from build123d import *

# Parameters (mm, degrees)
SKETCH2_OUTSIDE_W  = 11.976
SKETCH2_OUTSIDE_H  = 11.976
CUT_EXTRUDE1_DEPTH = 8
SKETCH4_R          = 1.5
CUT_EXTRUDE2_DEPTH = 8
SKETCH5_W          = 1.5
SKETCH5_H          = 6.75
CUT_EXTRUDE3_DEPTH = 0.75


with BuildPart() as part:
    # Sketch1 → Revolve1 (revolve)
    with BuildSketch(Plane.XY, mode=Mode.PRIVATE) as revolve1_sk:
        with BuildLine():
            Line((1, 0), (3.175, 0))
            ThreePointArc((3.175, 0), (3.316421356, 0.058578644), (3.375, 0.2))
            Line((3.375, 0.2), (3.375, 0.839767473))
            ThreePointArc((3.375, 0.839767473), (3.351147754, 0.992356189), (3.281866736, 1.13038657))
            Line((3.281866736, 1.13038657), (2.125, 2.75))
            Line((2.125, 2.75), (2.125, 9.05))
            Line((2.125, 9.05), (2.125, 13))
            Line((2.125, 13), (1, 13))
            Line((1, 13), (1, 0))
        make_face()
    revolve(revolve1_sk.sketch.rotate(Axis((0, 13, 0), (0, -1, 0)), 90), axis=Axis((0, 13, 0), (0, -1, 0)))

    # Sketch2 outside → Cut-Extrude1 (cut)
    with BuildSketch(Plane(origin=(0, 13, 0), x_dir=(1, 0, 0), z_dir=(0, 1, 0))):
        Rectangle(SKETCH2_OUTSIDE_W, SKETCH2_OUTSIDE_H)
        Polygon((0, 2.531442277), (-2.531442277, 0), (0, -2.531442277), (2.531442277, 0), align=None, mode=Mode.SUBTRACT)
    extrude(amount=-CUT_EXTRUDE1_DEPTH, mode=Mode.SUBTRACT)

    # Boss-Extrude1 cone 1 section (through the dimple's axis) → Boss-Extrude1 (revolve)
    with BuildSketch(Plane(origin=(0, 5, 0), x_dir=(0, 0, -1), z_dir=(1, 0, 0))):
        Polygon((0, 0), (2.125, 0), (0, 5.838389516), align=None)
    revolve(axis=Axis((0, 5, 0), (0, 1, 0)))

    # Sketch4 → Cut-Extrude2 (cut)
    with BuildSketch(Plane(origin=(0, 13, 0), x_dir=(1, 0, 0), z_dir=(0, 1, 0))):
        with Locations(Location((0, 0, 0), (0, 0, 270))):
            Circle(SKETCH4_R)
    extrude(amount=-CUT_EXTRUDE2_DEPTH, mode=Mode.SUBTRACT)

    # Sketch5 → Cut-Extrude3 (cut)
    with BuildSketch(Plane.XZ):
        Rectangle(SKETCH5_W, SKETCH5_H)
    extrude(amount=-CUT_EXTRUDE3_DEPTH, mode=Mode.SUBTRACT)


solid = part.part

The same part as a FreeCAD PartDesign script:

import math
import FreeCAD as App
import Part
import Sketcher
Q = App.Units.Quantity


def add_polygon(sketch, points):
    """Adds a closed chain of lines whose ends are joined by coincident constraints."""
    first, n = sketch.GeometryCount, len(points)
    for a, b in zip(points, points[1:] + points[:1]):
        sketch.addGeometry(Part.LineSegment(App.Vector(*a, 0), App.Vector(*b, 0)), False)
    for i in range(n):
        sketch.addConstraint(Sketcher.Constraint("Coincident", first + i, 2, first + (i + 1) % n, 1))

doc = App.newDocument("Part")
body = doc.addObject("PartDesign::Body", "Body")

# Sketch on XY plane
sketch1 = body.newObject("Sketcher::SketchObject", "Sketch")
sketch1.AttachmentSupport = (doc.getObject("XY_Plane"), [""])
sketch1.MapMode = "FlatFace"
sketch1.addGeometry([
    Part.LineSegment(App.Vector(1, 0, 0), App.Vector(3.17, 0, 0)),  # 0
    Part.ArcOfCircle(Part.Circle(App.Vector(3.17, 0.2, 0), App.Vector(0, 0, 1), 0.2), math.radians(-90), math.radians(0)),  # 1
    Part.LineSegment(App.Vector(3.38, 0.2, 0), App.Vector(3.38, 0.84, 0)),  # 2
    Part.ArcOfCircle(Part.Circle(App.Vector(2.87, 0.84, 0), App.Vector(0, 0, 1), 0.5), math.radians(0), math.radians(36)),  # 3
    Part.LineSegment(App.Vector(3.28, 1.13, 0), App.Vector(2.12, 2.75, 0)),  # 4
    Part.LineSegment(App.Vector(2.12, 2.75, 0), App.Vector(2.12, 13, 0)),  # 5
    Part.LineSegment(App.Vector(2.12, 13, 0), App.Vector(1, 13, 0)),  # 6
    Part.LineSegment(App.Vector(1, 13, 0), App.Vector(1, 0, 0)),  # 7
], False)
sketch1.addConstraint([
    Sketcher.Constraint("Tangent", 0, 2, 1, 1),
    Sketcher.Constraint("Tangent", 1, 2, 2, 1),
    Sketcher.Constraint("Tangent", 2, 2, 3, 1),
    Sketcher.Constraint("Tangent", 3, 2, 4, 1),
    Sketcher.Constraint("Coincident", 4, 2, 5, 1),
    Sketcher.Constraint("Coincident", 5, 2, 6, 1),
    Sketcher.Constraint("Coincident", 6, 2, 7, 1),
    Sketcher.Constraint("Coincident", 7, 2, 0, 1),
    Sketcher.Constraint("Horizontal", 0),
    Sketcher.Constraint("Vertical", 2),
    Sketcher.Constraint("Vertical", 5),
    Sketcher.Constraint("Horizontal", 6),
    Sketcher.Constraint("Vertical", 7),
    Sketcher.Constraint("PointOnObject", 0, 2, -1),
    Sketcher.Constraint("Radius", 1, Q("0.2 mm")),
    Sketcher.Constraint("Radius", 3, Q("0.5 mm")),
    Sketcher.Constraint("DistanceY", 7, 2, 7, 1, Q("13 mm")),
    Sketcher.Constraint("DistanceX", -1, 1, 6, 2, Q("1 mm")),
    Sketcher.Constraint("DistanceY", 5, 1, 5, 2, Q("10.25 mm")),
    Sketcher.Constraint("DistanceX", 0, 1, 0, 2, Q("2.175 mm")),
    Sketcher.Constraint("DistanceX", 6, 2, 6, 1, Q("1.125 mm")),
    Sketcher.Constraint("Distance", 4, Q("1.990349 mm")),
])
revolution = body.newObject("PartDesign::Revolution", "Revolution")
revolution.Profile = sketch1
revolution.ReferenceAxis = (sketch1, ["V_Axis"])
revolution.Angle = 360

# Sketch on XZ plane
sketch2 = body.newObject("Sketcher::SketchObject", "Sketch001")
sketch2.AttachmentSupport = (doc.getObject("XZ_Plane"), [""])
sketch2.MapMode = "FlatFace"
sketch2.AttachmentOffset = App.Placement(App.Vector(0, 0, -13), App.Rotation())
add_polygon(sketch2, [(-6, -6), (-6, 6), (6, 6), (6, -6)])  # lines 0-3
add_polygon(sketch2, [(-2.5, 0), (0, -2.5), (2.5, 0), (0, 2.5)])  # lines 4-7
sketch2.addConstraint([
    Sketcher.Constraint("Vertical", 0),
    Sketcher.Constraint("Horizontal", 1),
    Sketcher.Constraint("Vertical", 2),
    Sketcher.Constraint("Horizontal", 3),
    Sketcher.Constraint("Symmetric", 0, 2, 2, 2, -1, 1),
    Sketcher.Constraint("Symmetric", 4, 2, 6, 2, -1, 1),
    Sketcher.Constraint("Symmetric", 5, 2, 7, 2, -1, 1),
    Sketcher.Constraint("PointOnObject", 4, 2, -2),
    Sketcher.Constraint("PointOnObject", 5, 2, -1),
    Sketcher.Constraint("Perpendicular", 4, 5),
    Sketcher.Constraint("Equal", 3, 0),
    Sketcher.Constraint("Distance", 4, Q("3.58 mm")),
    Sketcher.Constraint("DistanceX", 1, 1, 1, 2, Q("11.976 mm")),
])
pocket1 = body.newObject("PartDesign::Pocket", "Pocket")
pocket1.Profile = sketch2
pocket1.Length = 8
pocket1.Reversed = True

# Sketch on YZ plane
sketch3 = body.newObject("Sketcher::SketchObject", "Sketch002")
sketch3.AttachmentSupport = (doc.getObject("YZ_Plane"), [""])
sketch3.MapMode = "FlatFace"
add_polygon(sketch3, [(5, 0), (5, -2.1), (10.8, 0)])  # lines 0-2
sketch3.addConstraint([
    Sketcher.Constraint("Vertical", 0),
    Sketcher.Constraint("Horizontal", 2),
    Sketcher.Constraint("PointOnObject", 1, 2, -1),
    Sketcher.Constraint("Angle", 1, Q("20 deg")),
    Sketcher.Constraint("DistanceX", -1, 1, 0, 2, Q("5 mm")),
    Sketcher.Constraint("DistanceY", 0, 2, 0, 1, Q("2.125 mm")),
])
revolution2 = body.newObject("PartDesign::Revolution", "Revolution001")
revolution2.Profile = sketch3
revolution2.ReferenceAxis = (sketch3, ["H_Axis"])
revolution2.Angle = 360

# Sketch on XZ plane
sketch4 = body.newObject("Sketcher::SketchObject", "Sketch003")
sketch4.AttachmentSupport = (doc.getObject("XZ_Plane"), [""])
sketch4.MapMode = "FlatFace"
sketch4.AttachmentOffset = App.Placement(App.Vector(0, 0, -13), App.Rotation())
sketch4.addGeometry(Part.Circle(App.Vector(0, 0, 0), App.Vector(0, 0, 1), 1.5), False)
sketch4.addConstraint([
    Sketcher.Constraint("Coincident", 0, 3, -1, 1),
    Sketcher.Constraint("Diameter", 0, Q("3 mm")),
])
pocket2 = body.newObject("PartDesign::Pocket", "Pocket001")
pocket2.Profile = sketch4
pocket2.Length = 8
pocket2.Reversed = True

# Sketch on XZ plane
sketch5 = body.newObject("Sketcher::SketchObject", "Sketch004")
sketch5.AttachmentSupport = (doc.getObject("XZ_Plane"), [""])
sketch5.MapMode = "FlatFace"
add_polygon(sketch5, [(-0.8, 3.4), (-0.8, -3.4), (0.8, -3.4), (0.8, 3.4)])  # lines 0-3
sketch5.addConstraint([
    Sketcher.Constraint("Vertical", 0),
    Sketcher.Constraint("Horizontal", 1),
    Sketcher.Constraint("Vertical", 2),
    Sketcher.Constraint("Horizontal", 3),
    Sketcher.Constraint("Symmetric", 0, 2, 2, 2, -1, 1),
    Sketcher.Constraint("DistanceX", 1, 1, 1, 2, Q("1.5 mm")),
    Sketcher.Constraint("DistanceY", 0, 2, 0, 1, Q("6.75 mm")),
])
pocket3 = body.newObject("PartDesign::Pocket", "Pocket002")
pocket3.Profile = sketch5
pocket3.Length = 0.75

doc.recompute()
